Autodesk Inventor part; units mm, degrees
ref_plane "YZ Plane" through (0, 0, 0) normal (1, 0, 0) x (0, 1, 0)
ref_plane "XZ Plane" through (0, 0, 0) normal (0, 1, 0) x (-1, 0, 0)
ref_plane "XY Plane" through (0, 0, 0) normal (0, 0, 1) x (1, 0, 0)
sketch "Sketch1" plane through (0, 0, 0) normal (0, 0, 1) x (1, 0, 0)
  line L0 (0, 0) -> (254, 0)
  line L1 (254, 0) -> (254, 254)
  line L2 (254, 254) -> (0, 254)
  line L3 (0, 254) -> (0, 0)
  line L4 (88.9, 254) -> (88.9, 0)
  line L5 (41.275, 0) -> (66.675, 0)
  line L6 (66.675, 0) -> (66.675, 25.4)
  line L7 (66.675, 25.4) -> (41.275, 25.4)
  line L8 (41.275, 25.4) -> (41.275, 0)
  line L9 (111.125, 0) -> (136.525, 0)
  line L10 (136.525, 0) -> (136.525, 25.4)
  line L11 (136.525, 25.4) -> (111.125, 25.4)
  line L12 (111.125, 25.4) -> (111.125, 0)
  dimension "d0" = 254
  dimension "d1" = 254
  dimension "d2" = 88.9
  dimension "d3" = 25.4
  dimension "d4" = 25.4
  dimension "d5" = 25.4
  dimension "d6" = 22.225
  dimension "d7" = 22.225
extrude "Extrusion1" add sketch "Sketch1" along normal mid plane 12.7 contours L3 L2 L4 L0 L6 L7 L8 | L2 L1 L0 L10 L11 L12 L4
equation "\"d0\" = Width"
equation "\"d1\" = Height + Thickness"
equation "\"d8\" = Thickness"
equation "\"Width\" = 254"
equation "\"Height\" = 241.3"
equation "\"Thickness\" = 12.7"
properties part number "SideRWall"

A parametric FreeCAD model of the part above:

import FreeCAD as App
import Part
import Sketcher
from FreeCAD import Vector
Q = App.Units.Quantity


def add_polygon(sketch, points):
    """Adds a closed chain of lines whose ends are joined by coincident constraints."""
    first, n = sketch.GeometryCount, len(points)
    for a, b in zip(points, points[1:] + points[:1]):
        sketch.addGeometry(Part.LineSegment(App.Vector(*a, 0), App.Vector(*b, 0)), False)
    for i in range(n):
        sketch.addConstraint(Sketcher.Constraint("Coincident", first + i, 2, first + (i + 1) % n, 1))

doc = App.newDocument("Part")
params = doc.addObject("Spreadsheet::Sheet", "Params")
for row, (alias, value) in enumerate([
    ("sketch1_width", "1 in"),
    ("sketch1_width2", "10 in"),
    ("sketch1_width3", "1.75 in"),
    ("sketch1_width4", "1.625 in"),
    ("pad1_length", "0.5 in"),
], start=1):
    params.set(f"A{row}", alias)
    params.set(f"B{row}", "=" + value)
    params.setAlias(f"B{row}", alias)

body = doc.addObject("PartDesign::Body", "Body")

sketch1 = doc.addObject("Sketcher::SketchObject", "Sketch")
body.addObject(sketch1)
sketch1.AttachmentSupport = (doc.XY_Plane, [""])
sketch1.MapMode = "FlatFace"
add_polygon(sketch1, [(0, 254), (0, 0), (41, 0), (41, 25), (67, 25), (67, 0), (111, 0), (111, 25), (137, 25), (137, 0), (254, 0), (254, 254)])
sketch1.addConstraint(Sketcher.Constraint("Vertical", 0))
sketch1.addConstraint(Sketcher.Constraint("Horizontal", 1))
sketch1.addConstraint(Sketcher.Constraint("Vertical", 2))
sketch1.addConstraint(Sketcher.Constraint("Horizontal", 3))
sketch1.addConstraint(Sketcher.Constraint("Vertical", 4))
sketch1.addConstraint(Sketcher.Constraint("Horizontal", 5))
sketch1.addConstraint(Sketcher.Constraint("Vertical", 6))
sketch1.addConstraint(Sketcher.Constraint("Horizontal", 7))
sketch1.addConstraint(Sketcher.Constraint("Vertical", 8))
sketch1.addConstraint(Sketcher.Constraint("Horizontal", 9))
sketch1.addConstraint(Sketcher.Constraint("Vertical", 10))
sketch1.addConstraint(Sketcher.Constraint("Horizontal", 11))
sketch1.addConstraint(Sketcher.Constraint("Coincident", 0, 2, -1, 1))
sketch1.addConstraint(Sketcher.Constraint("PointOnObject", 4, 2, -1))
sketch1.addConstraint(Sketcher.Constraint("PointOnObject", 8, 2, -1))
sketch1.addConstraint(Sketcher.Constraint("Horizontal", 3, 2, 6, 2))
sketch1.addConstraint(Sketcher.Constraint("Equal", 3, 7))
sketch1.addConstraint(Sketcher.Constraint("Equal", 11, 0))
sketch1.addConstraint(Sketcher.Constraint("Equal", 7, 2))
sketch1.addConstraint(Sketcher.Constraint("DistanceX", 3, 1, 3, 2, Q("1 in")))
sketch1.addConstraint(Sketcher.Constraint("DistanceX", 11, 2, 11, 1, Q("10 in")))
sketch1.addConstraint(Sketcher.Constraint("DistanceX", 5, 1, 5, 2, Q("1.75 in")))
sketch1.addConstraint(Sketcher.Constraint("DistanceX", 1, 1, 1, 2, Q("1.625 in")))
sketch1.setExpression("Constraints[31]", "Params.sketch1_width")
sketch1.setExpression("Constraints[32]", "Params.sketch1_width2")
sketch1.setExpression("Constraints[33]", "Params.sketch1_width3")
sketch1.setExpression("Constraints[34]", "Params.sketch1_width4")
pad1 = doc.addObject("PartDesign::Pad", "Pad")
body.addObject(pad1)
pad1.Profile = sketch1
pad1.setExpression("Length", "Params.pad1_length")
pad1.Midplane = True

doc.recompute()
